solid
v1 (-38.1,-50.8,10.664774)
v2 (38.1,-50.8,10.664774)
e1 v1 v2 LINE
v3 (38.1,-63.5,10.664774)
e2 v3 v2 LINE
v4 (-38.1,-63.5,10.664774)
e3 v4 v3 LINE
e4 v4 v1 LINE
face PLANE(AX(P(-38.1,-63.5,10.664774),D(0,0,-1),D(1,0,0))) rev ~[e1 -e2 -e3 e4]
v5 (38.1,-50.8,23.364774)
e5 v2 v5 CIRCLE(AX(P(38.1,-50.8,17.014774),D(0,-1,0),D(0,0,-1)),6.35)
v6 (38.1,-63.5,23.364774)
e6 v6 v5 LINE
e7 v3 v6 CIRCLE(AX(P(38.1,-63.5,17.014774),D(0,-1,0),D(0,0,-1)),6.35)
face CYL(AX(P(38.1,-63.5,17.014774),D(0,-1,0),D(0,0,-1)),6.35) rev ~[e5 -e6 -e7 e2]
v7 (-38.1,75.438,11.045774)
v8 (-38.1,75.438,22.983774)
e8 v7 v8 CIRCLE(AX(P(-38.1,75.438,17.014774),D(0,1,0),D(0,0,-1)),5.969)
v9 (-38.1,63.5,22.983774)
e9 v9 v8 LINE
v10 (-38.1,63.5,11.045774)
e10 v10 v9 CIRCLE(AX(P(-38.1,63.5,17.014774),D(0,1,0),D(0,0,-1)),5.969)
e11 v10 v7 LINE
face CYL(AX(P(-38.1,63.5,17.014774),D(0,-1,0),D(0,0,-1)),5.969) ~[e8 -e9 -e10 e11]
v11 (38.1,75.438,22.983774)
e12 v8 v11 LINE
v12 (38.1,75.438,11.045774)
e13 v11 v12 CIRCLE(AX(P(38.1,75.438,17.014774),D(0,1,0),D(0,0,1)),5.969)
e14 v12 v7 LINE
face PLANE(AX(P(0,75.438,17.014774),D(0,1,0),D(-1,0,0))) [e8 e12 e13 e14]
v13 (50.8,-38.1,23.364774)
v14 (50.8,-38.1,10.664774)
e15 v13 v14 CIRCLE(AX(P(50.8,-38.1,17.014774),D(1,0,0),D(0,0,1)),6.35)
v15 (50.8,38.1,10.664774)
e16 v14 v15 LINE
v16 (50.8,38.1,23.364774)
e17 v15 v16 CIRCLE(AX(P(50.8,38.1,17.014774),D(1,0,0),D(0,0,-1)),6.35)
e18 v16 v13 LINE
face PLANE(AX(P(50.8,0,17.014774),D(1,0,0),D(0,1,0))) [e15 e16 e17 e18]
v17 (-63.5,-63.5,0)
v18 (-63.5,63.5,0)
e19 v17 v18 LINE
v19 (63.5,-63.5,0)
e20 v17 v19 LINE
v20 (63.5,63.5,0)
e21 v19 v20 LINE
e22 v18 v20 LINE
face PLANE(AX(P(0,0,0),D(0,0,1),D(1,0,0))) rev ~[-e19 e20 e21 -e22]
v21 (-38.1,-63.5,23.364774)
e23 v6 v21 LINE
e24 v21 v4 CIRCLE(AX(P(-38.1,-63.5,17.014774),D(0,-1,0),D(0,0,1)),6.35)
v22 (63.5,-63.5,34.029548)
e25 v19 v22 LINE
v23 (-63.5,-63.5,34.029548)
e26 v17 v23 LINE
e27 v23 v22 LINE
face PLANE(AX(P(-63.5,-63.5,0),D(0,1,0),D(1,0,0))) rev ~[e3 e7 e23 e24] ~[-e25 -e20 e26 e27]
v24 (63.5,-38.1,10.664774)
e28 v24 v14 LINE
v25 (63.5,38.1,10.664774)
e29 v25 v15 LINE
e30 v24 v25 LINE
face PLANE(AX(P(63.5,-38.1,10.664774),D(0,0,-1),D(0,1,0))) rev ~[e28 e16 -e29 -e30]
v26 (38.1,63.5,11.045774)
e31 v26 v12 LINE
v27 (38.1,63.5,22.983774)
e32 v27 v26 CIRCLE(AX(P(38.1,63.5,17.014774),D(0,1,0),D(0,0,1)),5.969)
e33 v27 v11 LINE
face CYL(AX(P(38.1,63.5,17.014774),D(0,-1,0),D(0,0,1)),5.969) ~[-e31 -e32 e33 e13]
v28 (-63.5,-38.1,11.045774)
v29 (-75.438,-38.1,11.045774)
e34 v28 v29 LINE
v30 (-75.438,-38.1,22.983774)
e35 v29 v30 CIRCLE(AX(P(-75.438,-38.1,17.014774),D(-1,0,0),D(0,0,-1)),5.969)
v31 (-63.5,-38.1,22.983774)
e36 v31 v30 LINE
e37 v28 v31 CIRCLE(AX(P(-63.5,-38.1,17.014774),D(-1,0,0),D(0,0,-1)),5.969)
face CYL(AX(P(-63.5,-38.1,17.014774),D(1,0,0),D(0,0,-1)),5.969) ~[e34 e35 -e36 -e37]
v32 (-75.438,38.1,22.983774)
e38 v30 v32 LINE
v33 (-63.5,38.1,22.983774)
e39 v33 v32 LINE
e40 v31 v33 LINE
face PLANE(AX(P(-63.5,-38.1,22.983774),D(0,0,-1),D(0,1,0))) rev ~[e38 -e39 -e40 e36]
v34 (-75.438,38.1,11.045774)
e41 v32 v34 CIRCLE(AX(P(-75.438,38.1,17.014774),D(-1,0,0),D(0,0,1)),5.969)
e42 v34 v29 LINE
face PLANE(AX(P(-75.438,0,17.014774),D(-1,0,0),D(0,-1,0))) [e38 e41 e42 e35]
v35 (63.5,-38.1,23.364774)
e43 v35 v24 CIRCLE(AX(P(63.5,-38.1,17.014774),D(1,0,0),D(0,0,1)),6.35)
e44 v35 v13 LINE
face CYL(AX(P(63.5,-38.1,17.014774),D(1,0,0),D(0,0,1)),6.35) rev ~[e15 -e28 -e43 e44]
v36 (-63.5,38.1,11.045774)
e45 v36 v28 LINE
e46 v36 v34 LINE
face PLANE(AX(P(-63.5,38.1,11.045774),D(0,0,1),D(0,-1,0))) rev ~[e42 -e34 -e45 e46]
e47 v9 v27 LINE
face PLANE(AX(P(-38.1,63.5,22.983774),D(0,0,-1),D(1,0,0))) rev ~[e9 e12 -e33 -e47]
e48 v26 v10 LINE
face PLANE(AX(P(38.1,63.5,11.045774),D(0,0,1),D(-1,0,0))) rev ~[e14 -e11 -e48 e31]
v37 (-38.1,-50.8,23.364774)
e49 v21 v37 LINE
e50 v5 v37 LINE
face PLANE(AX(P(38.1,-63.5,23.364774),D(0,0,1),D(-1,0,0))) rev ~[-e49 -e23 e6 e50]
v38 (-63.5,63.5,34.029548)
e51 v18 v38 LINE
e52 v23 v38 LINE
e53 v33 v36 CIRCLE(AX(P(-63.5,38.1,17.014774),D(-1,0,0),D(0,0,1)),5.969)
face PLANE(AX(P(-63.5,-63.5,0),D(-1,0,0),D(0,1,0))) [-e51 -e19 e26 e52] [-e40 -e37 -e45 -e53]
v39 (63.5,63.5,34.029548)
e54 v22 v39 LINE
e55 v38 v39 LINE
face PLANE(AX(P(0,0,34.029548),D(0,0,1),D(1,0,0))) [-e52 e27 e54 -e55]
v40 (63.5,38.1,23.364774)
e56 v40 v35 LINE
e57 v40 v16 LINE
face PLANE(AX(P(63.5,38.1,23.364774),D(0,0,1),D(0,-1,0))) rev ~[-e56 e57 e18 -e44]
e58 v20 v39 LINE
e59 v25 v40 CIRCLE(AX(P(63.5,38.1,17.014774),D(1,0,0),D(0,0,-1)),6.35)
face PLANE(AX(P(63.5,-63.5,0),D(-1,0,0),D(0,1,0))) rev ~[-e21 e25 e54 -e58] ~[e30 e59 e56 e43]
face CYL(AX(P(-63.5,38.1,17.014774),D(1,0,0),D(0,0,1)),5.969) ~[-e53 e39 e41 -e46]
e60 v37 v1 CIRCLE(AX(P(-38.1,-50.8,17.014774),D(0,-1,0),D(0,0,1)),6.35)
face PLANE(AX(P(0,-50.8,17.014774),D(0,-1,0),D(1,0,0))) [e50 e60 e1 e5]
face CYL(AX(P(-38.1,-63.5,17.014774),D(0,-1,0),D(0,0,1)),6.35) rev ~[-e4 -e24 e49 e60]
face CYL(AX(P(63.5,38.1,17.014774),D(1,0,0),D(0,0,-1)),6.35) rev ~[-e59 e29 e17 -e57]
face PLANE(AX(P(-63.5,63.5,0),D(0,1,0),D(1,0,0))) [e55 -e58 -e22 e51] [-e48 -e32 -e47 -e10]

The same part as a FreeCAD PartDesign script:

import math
import FreeCAD as App
import Part
import Sketcher
Q = App.Units.Quantity


def add_polygon(sketch, points):
    """Adds a closed chain of lines whose ends are joined by coincident constraints."""
    first, n = sketch.GeometryCount, len(points)
    for a, b in zip(points, points[1:] + points[:1]):
        sketch.addGeometry(Part.LineSegment(App.Vector(*a, 0), App.Vector(*b, 0)), False)
    for i in range(n):
        sketch.addConstraint(Sketcher.Constraint("Coincident", first + i, 2, first + (i + 1) % n, 1))

doc = App.newDocument("Part")
body = doc.addObject("PartDesign::Body", "Body")

# Sketch on XY plane
sketch1 = body.newObject("Sketcher::SketchObject", "Sketch")
sketch1.AttachmentSupport = (doc.getObject("XY_Plane"), [""])
sketch1.MapMode = "FlatFace"
add_polygon(sketch1, [(-64, 64), (-64, -64), (64, -64), (64, 64)])  # lines 0-3
sketch1.addConstraint([
    Sketcher.Constraint("Vertical", 0),
    Sketcher.Constraint("Horizontal", 1),
    Sketcher.Constraint("Vertical", 2),
    Sketcher.Constraint("Horizontal", 3),
    Sketcher.Constraint("Symmetric", 0, 2, 2, 2, -1, 1),
    Sketcher.Constraint("Equal", 3, 0),
    Sketcher.Constraint("DistanceX", 1, 1, 1, 2, Q("5 in")),
])
pad1 = body.newObject("PartDesign::Pad", "Pad")
pad1.Profile = sketch1
pad1.Length = 34.029548

# Sketch on XZ plane
sketch2 = body.newObject("Sketcher::SketchObject", "Sketch001")
sketch2.AttachmentSupport = (doc.getObject("XZ_Plane"), [""])
sketch2.MapMode = "FlatFace"
sketch2.AttachmentOffset = App.Placement(App.Vector(0, 0, -2.5 * 25.4), App.Rotation())
sketch2.addGeometry([
    Part.ArcOfCircle(Part.Circle(App.Vector(38, 17, 0), App.Vector(0, 0, 1), 6), math.radians(-90), math.radians(90)),
    Part.LineSegment(App.Vector(38, 11, 0), App.Vector(-38, 11, 0)),
    Part.ArcOfCircle(Part.Circle(App.Vector(-38, 17, 0), App.Vector(0, 0, 1), 6), math.radians(90), math.radians(270)),
    Part.LineSegment(App.Vector(-38, 23, 0), App.Vector(38, 23, 0)),
], False)
sketch2.addConstraint([
    Sketcher.Constraint("Tangent", 0, 1, 1, 1),
    Sketcher.Constraint("Tangent", 1, 2, 2, 2),
    Sketcher.Constraint("Tangent", 2, 1, 3, 1),
    Sketcher.Constraint("Tangent", 3, 2, 0, 2),
    Sketcher.Constraint("Horizontal", 1),
    Sketcher.Constraint("Horizontal", 3),
    Sketcher.Constraint("DistanceX", 1, 2, 1, 1, Q("3 in")),
    Sketcher.Constraint("Radius", 0, Q("0.235 in")),
    Sketcher.Constraint("DistanceX", -1, 1, 0, 3, Q("1.5 in")),
    Sketcher.Constraint("DistanceY", -1, 1, 0, 3, 17.014774),
])
pad2 = body.newObject("PartDesign::Pad", "Pad001")
pad2.Profile = sketch2
pad2.Length = Q("0.47 in")
pad2.Reversed = True

# Sketch on XZ plane
sketch3 = body.newObject("Sketcher::SketchObject", "Sketch002")
sketch3.AttachmentSupport = (doc.getObject("XZ_Plane"), [""])
sketch3.MapMode = "FlatFace"
sketch3.AttachmentOffset = App.Placement(App.Vector(0, 0, 2.5 * 25.4), App.Rotation())
sketch3.addGeometry([
    Part.ArcOfCircle(Part.Circle(App.Vector(-38, 17, 0), App.Vector(0, 0, 1), 6), math.radians(90), math.radians(270)),
    Part.LineSegment(App.Vector(-38, 11, 0), App.Vector(38, 11, 0)),
    Part.ArcOfCircle(Part.Circle(App.Vector(38, 17, 0), App.Vector(0, 0, 1), 6), math.radians(-90), math.radians(90)),
    Part.LineSegment(App.Vector(38, 23, 0), App.Vector(-38, 23, 0)),
], False)
sketch3.addConstraint([
    Sketcher.Constraint("Tangent", 0, 2, 1, 1),
    Sketcher.Constraint("Tangent", 1, 2, 2, 1),
    Sketcher.Constraint("Tangent", 2, 2, 3, 1),
    Sketcher.Constraint("Tangent", 3, 2, 0, 1),
    Sketcher.Constraint("Horizontal", 1),
    Sketcher.Constraint("Horizontal", 3),
    Sketcher.Constraint("DistanceX", 1, 1, 1, 2, Q("3 in")),
    Sketcher.Constraint("Radius", 0, Q("0.25 in")),
    Sketcher.Constraint("DistanceX", 0, 3, -1, 1, Q("1.5 in")),
    Sketcher.Constraint("DistanceY", -1, 1, 0, 3, 17.014774),
])
pocket1 = body.newObject("PartDesign::Pocket", "Pocket")
pocket1.Profile = sketch3
pocket1.Length = Q("0.5 in")

# Sketch on YZ plane
sketch4 = body.newObject("Sketcher::SketchObject", "Sketch003")
sketch4.AttachmentSupport = (doc.getObject("YZ_Plane"), [""])
sketch4.MapMode = "FlatFace"
sketch4.AttachmentOffset = App.Placement(App.Vector(0, 0, 2.5 * 25.4), App.Rotation())
sketch4.addGeometry([
    Part.ArcOfCircle(Part.Circle(App.Vector(-38, 17, 0), App.Vector(0, 0, 1), 6), math.radians(90), math.radians(270)),
    Part.LineSegment(App.Vector(-38, 11, 0), App.Vector(38, 11, 0)),
    Part.ArcOfCircle(Part.Circle(App.Vector(38, 17, 0), App.Vector(0, 0, 1), 6), math.radians(-90), math.radians(90)),
    Part.LineSegment(App.Vector(38, 23, 0), App.Vector(-38, 23, 0)),
], False)
sketch4.addConstraint([
    Sketcher.Constraint("Tangent", 0, 2, 1, 1),
    Sketcher.Constraint("Tangent", 1, 2, 2, 1),
    Sketcher.Constraint("Tangent", 2, 2, 3, 1),
    Sketcher.Constraint("Tangent", 3, 2, 0, 1),
    Sketcher.Constraint("Horizontal", 1),
    Sketcher.Constraint("Horizontal", 3),
    Sketcher.Constraint("DistanceX", 1, 1, 1, 2, Q("3 in")),
    Sketcher.Constraint("Radius", 0, Q("0.25 in")),
    Sketcher.Constraint("DistanceX", 0, 3, -1, 1, Q("1.5 in")),
    Sketcher.Constraint("DistanceY", -1, 1, 0, 3, 17.014774),
])
pocket2 = body.newObject("PartDesign::Pocket", "Pocket001")
pocket2.Profile = sketch4
pocket2.Length = Q("0.5 in")

# Sketch on YZ plane
sketch5 = body.newObject("Sketcher::SketchObject", "Sketch004")
sketch5.AttachmentSupport = (doc.getObject("YZ_Plane"), [""])
sketch5.MapMode = "FlatFace"
sketch5.AttachmentOffset = App.Placement(App.Vector(0, 0, -2.5 * 25.4), App.Rotation())
sketch5.addGeometry([
    Part.ArcOfCircle(Part.Circle(App.Vector(38, 17, 0), App.Vector(0, 0, 1), 6), math.radians(-90), math.radians(90)),
    Part.LineSegment(App.Vector(38, 11, 0), App.Vector(-38, 11, 0)),
    Part.ArcOfCircle(Part.Circle(App.Vector(-38, 17, 0), App.Vector(0, 0, 1), 6), math.radians(90), math.radians(270)),
    Part.LineSegment(App.Vector(-38, 23, 0), App.Vector(38, 23, 0)),
], False)
sketch5.addConstraint([
    Sketcher.Constraint("Tangent", 0, 1, 1, 1),
    Sketcher.Constraint("Tangent", 1, 2, 2, 2),
    Sketcher.Constraint("Tangent", 2, 1, 3, 1),
    Sketcher.Constraint("Tangent", 3, 2, 0, 2),
    Sketcher.Constraint("Horizontal", 1),
    Sketcher.Constraint("Horizontal", 3),
    Sketcher.Constraint("DistanceX", 1, 2, 1, 1, Q("3 in")),
    Sketcher.Constraint("Radius", 0, Q("0.235 in")),
    Sketcher.Constraint("DistanceX", -1, 1, 0, 3, Q("1.5 in")),
    Sketcher.Constraint("DistanceY", -1, 1, 0, 3, 17.014774),
])
pad3 = body.newObject("PartDesign::Pad", "Pad002")
pad3.Profile = sketch5
pad3.Length = Q("0.47 in")
pad3.Reversed = True

doc.recompute()
